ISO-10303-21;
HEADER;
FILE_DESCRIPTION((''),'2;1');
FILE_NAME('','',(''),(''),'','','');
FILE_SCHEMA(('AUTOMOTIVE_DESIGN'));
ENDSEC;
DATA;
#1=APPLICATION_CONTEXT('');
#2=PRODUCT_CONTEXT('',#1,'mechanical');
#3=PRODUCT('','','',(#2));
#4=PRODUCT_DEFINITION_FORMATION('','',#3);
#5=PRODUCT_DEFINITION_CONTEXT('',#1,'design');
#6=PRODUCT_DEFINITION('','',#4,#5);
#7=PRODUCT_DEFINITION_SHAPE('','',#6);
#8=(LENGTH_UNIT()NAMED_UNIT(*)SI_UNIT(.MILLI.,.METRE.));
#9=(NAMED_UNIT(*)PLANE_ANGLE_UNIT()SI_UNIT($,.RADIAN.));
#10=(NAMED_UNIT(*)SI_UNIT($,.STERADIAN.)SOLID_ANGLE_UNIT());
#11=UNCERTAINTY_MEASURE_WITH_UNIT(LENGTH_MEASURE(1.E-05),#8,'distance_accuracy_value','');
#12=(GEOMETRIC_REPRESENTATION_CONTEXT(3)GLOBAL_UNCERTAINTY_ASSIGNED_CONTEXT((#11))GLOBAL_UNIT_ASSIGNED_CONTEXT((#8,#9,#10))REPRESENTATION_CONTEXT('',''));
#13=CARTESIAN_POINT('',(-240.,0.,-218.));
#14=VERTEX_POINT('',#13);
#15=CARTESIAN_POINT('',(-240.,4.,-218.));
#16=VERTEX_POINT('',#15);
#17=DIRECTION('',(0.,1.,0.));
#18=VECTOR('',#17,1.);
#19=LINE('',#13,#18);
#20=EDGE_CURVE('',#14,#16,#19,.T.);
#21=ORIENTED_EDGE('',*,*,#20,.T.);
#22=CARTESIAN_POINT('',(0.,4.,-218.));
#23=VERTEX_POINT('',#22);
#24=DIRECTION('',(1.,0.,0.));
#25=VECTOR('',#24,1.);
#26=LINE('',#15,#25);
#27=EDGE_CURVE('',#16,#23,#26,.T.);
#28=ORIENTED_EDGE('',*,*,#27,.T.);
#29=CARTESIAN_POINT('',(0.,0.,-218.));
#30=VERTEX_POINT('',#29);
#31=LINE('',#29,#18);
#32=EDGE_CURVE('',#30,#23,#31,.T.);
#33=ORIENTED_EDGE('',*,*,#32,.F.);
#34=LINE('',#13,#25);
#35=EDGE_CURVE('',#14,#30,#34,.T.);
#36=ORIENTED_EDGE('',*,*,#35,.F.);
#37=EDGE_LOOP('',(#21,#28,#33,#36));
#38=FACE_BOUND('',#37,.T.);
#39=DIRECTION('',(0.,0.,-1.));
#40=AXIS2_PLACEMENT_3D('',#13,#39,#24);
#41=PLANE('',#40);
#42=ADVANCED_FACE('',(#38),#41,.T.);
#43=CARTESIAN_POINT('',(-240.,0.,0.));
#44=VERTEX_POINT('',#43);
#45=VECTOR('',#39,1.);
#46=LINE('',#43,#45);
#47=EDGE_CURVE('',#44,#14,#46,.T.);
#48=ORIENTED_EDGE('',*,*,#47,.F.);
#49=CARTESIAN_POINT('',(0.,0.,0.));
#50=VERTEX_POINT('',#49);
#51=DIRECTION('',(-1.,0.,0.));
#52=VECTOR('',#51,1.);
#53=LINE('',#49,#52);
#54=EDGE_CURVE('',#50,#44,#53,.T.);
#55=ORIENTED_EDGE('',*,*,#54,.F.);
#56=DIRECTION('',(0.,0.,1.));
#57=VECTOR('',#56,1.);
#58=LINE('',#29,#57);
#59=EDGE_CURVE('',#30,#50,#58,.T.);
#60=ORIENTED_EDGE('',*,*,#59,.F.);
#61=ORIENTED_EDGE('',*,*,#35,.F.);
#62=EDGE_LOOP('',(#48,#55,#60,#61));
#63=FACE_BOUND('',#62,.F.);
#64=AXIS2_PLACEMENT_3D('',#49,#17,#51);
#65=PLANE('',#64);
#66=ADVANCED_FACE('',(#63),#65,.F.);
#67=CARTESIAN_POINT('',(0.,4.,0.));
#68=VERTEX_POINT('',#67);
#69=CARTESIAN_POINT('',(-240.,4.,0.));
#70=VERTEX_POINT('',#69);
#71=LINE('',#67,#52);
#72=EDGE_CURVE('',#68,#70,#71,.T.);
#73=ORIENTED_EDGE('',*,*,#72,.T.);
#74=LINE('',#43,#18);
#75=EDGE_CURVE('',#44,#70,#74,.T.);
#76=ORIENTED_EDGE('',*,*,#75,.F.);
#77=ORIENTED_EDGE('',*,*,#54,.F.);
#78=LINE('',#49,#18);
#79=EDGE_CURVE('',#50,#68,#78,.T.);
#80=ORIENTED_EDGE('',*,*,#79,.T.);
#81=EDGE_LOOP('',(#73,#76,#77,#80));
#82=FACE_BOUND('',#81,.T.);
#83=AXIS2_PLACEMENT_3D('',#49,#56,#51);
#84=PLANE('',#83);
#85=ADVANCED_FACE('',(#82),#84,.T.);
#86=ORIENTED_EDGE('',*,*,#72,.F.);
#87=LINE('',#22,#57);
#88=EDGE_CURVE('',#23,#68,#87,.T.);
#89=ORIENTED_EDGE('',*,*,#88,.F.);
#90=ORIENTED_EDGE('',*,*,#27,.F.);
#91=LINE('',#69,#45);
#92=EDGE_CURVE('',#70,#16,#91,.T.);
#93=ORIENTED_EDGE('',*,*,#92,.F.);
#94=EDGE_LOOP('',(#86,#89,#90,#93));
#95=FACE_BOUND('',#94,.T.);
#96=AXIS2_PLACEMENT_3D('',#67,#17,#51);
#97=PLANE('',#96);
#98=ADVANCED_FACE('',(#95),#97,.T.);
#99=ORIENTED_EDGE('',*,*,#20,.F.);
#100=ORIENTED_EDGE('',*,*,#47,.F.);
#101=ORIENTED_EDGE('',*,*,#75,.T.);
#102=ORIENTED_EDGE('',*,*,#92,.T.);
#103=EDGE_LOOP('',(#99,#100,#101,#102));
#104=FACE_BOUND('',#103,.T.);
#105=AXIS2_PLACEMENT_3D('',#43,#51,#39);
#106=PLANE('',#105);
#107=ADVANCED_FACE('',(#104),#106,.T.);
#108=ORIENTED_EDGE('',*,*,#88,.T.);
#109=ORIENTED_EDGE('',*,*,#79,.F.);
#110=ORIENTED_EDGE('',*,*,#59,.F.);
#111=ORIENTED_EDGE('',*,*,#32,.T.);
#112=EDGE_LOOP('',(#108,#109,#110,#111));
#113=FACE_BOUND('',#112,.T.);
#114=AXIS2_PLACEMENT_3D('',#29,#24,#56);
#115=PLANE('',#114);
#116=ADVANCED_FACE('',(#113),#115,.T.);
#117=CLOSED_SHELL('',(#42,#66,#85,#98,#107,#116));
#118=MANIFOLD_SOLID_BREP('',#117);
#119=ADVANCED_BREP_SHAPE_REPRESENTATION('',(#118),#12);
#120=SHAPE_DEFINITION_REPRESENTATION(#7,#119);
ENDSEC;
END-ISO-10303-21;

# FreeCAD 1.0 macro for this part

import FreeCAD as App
import Part
import Sketcher

doc = App.newDocument("Part")
body = doc.addObject("PartDesign::Body", "Body")

# Sketch on XZ plane
sketch1 = body.newObject("Sketcher::SketchObject", "Sketch")
sketch1.AttachmentSupport = (doc.getObject("XZ_Plane"), [""])
sketch1.MapMode = "FlatFace"
sketch1.addGeometry(Part.LineSegment(App.Vector(-240, 0, 0), App.Vector(0, 0, 0)), False)
sketch1.addGeometry(Part.LineSegment(App.Vector(0, 0, 0), App.Vector(0, -218, 0)), False)
sketch1.addGeometry(Part.LineSegment(App.Vector(0, -218, 0), App.Vector(-240, -218, 0)), False)
sketch1.addGeometry(Part.LineSegment(App.Vector(-240, -218, 0), App.Vector(-240, 0, 0)), False)
sketch1.addConstraint(Sketcher.Constraint("Coincident", 0, 2, 1, 1))
sketch1.addConstraint(Sketcher.Constraint("Coincident", 1, 2, 2, 1))
sketch1.addConstraint(Sketcher.Constraint("Coincident", 2, 2, 3, 1))
sketch1.addConstraint(Sketcher.Constraint("Coincident", 3, 2, 0, 1))
sketch1.addConstraint(Sketcher.Constraint("Horizontal", 0))
sketch1.addConstraint(Sketcher.Constraint("Vertical", 1))
sketch1.addConstraint(Sketcher.Constraint("Horizontal", 2))
sketch1.addConstraint(Sketcher.Constraint("Vertical", 3))
sketch1.addConstraint(Sketcher.Constraint("Coincident", 0, 2, -1, 1))
sketch1.addConstraint(Sketcher.Constraint("DistanceX", 0, 1, 0, 2, 240.0))
sketch1.addConstraint(Sketcher.Constraint("DistanceY", 1, 2, 1, 1, 218.0))
pad1 = body.newObject("PartDesign::Pad", "Pad")
pad1.Profile = sketch1
pad1.Length = 4
pad1.Reversed = True

doc.recompute()
